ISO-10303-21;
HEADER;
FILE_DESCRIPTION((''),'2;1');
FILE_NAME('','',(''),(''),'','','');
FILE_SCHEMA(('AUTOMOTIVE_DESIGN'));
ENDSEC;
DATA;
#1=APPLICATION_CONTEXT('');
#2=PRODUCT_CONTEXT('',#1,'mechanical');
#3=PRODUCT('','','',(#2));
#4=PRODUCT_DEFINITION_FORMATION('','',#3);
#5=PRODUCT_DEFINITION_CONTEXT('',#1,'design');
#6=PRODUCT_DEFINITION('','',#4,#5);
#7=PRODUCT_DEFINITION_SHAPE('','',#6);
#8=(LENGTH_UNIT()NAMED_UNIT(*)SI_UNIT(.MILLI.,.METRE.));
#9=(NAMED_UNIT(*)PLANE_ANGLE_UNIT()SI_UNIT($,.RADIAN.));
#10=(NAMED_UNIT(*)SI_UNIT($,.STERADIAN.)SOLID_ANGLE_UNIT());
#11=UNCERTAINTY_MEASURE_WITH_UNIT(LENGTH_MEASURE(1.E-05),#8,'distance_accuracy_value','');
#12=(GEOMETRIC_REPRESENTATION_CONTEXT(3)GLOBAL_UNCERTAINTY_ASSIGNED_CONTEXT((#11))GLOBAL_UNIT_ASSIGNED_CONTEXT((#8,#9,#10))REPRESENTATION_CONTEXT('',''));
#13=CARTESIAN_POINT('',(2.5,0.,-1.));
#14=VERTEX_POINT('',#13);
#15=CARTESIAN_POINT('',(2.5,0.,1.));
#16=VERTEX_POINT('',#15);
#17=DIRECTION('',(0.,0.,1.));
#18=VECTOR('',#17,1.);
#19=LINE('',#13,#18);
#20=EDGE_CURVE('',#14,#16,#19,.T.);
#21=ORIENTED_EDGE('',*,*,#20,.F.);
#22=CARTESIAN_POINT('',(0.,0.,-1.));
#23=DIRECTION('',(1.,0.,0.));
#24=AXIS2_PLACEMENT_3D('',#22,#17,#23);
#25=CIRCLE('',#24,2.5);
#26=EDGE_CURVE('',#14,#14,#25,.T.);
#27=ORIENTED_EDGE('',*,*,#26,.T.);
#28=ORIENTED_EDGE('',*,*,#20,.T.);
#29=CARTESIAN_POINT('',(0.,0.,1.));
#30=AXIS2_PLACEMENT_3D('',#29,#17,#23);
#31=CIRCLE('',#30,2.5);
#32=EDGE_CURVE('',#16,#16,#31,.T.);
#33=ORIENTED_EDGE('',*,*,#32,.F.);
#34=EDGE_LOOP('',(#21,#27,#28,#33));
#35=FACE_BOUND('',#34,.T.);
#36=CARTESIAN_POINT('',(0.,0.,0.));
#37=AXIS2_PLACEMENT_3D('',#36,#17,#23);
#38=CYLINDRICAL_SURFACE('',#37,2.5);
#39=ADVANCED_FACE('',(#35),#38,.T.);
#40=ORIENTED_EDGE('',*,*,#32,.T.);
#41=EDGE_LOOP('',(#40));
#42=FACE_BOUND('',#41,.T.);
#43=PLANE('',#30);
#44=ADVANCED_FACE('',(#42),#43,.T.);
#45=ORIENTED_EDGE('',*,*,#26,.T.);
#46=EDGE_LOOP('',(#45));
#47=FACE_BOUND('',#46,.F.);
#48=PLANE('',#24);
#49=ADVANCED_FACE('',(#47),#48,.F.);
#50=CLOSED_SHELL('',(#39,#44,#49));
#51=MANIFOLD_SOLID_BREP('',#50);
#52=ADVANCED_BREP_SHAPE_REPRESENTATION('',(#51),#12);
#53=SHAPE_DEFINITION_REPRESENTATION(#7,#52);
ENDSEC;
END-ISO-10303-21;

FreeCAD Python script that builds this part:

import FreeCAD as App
import Part
import Sketcher
Q = App.Units.Quantity

doc = App.newDocument("Part")
body = doc.addObject("PartDesign::Body", "Body")

sketch1 = doc.addObject("Sketcher::SketchObject", "Sketch")
body.addObject(sketch1)
sketch1.AttachmentSupport = (doc.XY_Plane, [""])
sketch1.MapMode = "FlatFace"
sketch1.addGeometry(Part.Circle(App.Vector(0, 0, 0), App.Vector(0, 0, 1), 2.5), False)
sketch1.addConstraint([
    Sketcher.Constraint("Coincident", 0, 3, -1, 1),
    Sketcher.Constraint("Diameter", 0, Q("5 mm")),
])
pad1 = doc.addObject("PartDesign::Pad", "Pad")
body.addObject(pad1)
pad1.Profile = sketch1
pad1.Length = 2
pad1.Midplane = True

doc.recompute()
